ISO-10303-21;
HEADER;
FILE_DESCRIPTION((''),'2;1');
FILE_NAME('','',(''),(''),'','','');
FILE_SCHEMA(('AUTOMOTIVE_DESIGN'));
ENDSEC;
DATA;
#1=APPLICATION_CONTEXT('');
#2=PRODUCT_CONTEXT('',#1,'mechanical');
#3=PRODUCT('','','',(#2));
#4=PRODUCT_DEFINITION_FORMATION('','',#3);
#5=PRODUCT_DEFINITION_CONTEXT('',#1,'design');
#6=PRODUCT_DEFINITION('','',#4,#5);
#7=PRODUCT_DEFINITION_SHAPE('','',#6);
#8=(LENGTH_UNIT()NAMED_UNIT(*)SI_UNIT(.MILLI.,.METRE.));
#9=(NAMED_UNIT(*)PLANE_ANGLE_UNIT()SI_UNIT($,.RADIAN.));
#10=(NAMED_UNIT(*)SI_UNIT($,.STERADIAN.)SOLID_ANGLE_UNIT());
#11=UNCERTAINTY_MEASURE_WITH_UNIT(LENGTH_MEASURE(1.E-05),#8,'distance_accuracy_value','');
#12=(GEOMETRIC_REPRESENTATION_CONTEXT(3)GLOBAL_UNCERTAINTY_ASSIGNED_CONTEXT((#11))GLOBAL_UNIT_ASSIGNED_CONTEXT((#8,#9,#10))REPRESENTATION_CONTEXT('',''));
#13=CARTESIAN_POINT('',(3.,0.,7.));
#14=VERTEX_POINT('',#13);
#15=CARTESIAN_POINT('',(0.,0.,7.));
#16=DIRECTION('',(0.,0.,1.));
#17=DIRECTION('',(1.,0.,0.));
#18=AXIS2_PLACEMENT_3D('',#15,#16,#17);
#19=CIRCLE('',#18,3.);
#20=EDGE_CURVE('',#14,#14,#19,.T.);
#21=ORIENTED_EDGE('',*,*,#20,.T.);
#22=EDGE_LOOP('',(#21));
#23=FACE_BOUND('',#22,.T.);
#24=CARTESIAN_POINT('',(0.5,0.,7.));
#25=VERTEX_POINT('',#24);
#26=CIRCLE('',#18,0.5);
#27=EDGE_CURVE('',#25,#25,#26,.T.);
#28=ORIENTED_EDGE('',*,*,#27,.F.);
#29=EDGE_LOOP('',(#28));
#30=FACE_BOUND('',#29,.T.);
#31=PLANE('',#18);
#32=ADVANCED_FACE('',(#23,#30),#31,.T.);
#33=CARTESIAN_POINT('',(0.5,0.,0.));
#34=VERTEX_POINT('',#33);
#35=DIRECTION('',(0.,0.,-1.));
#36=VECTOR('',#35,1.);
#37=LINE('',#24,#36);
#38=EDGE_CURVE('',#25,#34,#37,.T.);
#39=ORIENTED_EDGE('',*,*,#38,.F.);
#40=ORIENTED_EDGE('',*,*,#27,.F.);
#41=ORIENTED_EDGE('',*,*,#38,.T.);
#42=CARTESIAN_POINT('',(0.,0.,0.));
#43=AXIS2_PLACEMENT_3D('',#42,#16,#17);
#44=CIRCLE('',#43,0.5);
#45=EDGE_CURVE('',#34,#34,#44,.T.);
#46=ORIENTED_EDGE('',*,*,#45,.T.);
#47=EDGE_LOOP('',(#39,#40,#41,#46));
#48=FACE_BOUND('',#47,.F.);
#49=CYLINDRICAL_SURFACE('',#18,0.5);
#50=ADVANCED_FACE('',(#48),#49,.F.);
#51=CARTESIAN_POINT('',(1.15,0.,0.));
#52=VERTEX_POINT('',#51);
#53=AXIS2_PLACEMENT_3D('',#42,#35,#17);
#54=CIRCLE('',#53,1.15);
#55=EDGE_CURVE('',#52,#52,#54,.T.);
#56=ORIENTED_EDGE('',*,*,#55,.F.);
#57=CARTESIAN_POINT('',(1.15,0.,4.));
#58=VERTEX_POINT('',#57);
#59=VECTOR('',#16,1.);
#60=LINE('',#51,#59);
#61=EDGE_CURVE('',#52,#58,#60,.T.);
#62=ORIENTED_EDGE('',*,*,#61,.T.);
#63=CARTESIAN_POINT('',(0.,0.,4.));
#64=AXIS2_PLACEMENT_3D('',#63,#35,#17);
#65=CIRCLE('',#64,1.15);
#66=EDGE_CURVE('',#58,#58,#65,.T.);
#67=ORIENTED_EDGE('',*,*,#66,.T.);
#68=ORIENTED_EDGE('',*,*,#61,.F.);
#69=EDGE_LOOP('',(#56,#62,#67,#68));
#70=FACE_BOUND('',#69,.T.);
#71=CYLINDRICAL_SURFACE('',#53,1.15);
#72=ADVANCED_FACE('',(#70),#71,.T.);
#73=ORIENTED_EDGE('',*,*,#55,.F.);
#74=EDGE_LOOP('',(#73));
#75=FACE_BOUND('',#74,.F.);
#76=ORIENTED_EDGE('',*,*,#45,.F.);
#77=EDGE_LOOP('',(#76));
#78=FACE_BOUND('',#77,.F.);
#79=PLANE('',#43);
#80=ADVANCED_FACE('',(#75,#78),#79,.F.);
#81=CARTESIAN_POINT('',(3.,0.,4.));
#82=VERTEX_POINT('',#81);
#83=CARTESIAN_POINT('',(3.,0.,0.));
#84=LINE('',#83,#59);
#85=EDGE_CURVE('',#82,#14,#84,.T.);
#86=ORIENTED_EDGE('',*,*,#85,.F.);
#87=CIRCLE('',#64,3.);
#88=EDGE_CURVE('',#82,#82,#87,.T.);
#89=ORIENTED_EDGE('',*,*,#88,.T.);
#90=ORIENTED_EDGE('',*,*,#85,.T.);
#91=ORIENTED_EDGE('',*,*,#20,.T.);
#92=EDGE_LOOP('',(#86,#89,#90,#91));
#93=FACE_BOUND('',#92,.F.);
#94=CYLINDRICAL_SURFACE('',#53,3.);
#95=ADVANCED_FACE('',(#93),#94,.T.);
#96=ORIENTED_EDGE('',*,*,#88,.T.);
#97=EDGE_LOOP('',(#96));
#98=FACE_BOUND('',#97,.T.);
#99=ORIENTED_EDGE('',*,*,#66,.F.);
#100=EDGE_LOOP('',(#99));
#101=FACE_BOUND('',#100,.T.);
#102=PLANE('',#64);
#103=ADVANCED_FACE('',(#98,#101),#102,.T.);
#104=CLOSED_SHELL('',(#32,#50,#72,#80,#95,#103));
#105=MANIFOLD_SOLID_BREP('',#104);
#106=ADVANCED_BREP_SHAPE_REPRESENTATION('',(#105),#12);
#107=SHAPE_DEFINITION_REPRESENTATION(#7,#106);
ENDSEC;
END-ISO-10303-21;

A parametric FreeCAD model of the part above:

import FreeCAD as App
import Part
import Sketcher
Q = App.Units.Quantity

doc = App.newDocument("Part")
params = doc.addObject("Spreadsheet::Sheet", "Params")
for row, (alias, value) in enumerate([
    ("sketch1_diameter", "6 mm"),
    ("pad1_length", "7 mm"),
    ("sketch2_diameter", "6 mm"),
    ("sketch2_diameter2", "2.3 mm"),
    ("pocket1_length", "4 mm"),
    ("sketch3_diameter", "1 mm"),
    ("pocket2_length", "25 mm"),
], start=1):
    params.set(f"A{row}", alias)
    params.set(f"B{row}", "=" + value)
    params.setAlias(f"B{row}", alias)

body = doc.addObject("PartDesign::Body", "Body")

# Sketch on XY plane
sketch1 = body.newObject("Sketcher::SketchObject", "Sketch")
sketch1.AttachmentSupport = (doc.getObject("XY_Plane"), [""])
sketch1.MapMode = "FlatFace"
sketch1.addGeometry(Part.Circle(App.Vector(0, 0, 0), App.Vector(0, 0, 1), 3), False)
sketch1.addConstraint(Sketcher.Constraint("Coincident", 0, 3, -1, 1))
sketch1.addConstraint(Sketcher.Constraint("Diameter", 0, Q("6 mm")))
sketch1.setExpression("Constraints[1]", "Params.sketch1_diameter")
pad1 = body.newObject("PartDesign::Pad", "Pad")
pad1.Profile = sketch1
pad1.setExpression("Length", "Params.pad1_length")

# Sketch on XY plane
sketch2 = body.newObject("Sketcher::SketchObject", "Sketch001")
sketch2.AttachmentSupport = (doc.getObject("XY_Plane"), [""])
sketch2.MapMode = "FlatFace"
sketch2.addGeometry(Part.Circle(App.Vector(0, 0, 0), App.Vector(0, 0, 1), 3), False)
sketch2.addGeometry(Part.Circle(App.Vector(0, 0, 0), App.Vector(0, 0, 1), 1.1), False)
sketch2.addConstraint(Sketcher.Constraint("Coincident", 0, 3, -1, 1))
sketch2.addConstraint(Sketcher.Constraint("Coincident", 1, 3, -1, 1))
sketch2.addConstraint(Sketcher.Constraint("Diameter", 0, Q("6 mm")))
sketch2.addConstraint(Sketcher.Constraint("Diameter", 1, Q("2.3 mm")))
sketch2.setExpression("Constraints[2]", "Params.sketch2_diameter")
sketch2.setExpression("Constraints[3]", "Params.sketch2_diameter2")
pocket1 = body.newObject("PartDesign::Pocket", "Pocket")
pocket1.Profile = sketch2
pocket1.setExpression("Length", "Params.pocket1_length")
pocket1.Reversed = True

# Sketch on XY plane
sketch3 = body.newObject("Sketcher::SketchObject", "Sketch002")
sketch3.AttachmentSupport = (doc.getObject("XY_Plane"), [""])
sketch3.MapMode = "FlatFace"
sketch3.AttachmentOffset = App.Placement(App.Vector(0, 0, 7), App.Rotation())
sketch3.addGeometry(Part.Circle(App.Vector(0, 0, 0), App.Vector(0, 0, 1), 0.5), False)
sketch3.addConstraint(Sketcher.Constraint("Coincident", 0, 3, -1, 1))
sketch3.addConstraint(Sketcher.Constraint("Diameter", 0, Q("1 mm")))
sketch3.setExpression("Constraints[1]", "Params.sketch3_diameter")
pocket2 = body.newObject("PartDesign::Pocket", "Pocket001")
pocket2.Profile = sketch3
pocket2.setExpression("Length", "Params.pocket2_length")

doc.recompute()
